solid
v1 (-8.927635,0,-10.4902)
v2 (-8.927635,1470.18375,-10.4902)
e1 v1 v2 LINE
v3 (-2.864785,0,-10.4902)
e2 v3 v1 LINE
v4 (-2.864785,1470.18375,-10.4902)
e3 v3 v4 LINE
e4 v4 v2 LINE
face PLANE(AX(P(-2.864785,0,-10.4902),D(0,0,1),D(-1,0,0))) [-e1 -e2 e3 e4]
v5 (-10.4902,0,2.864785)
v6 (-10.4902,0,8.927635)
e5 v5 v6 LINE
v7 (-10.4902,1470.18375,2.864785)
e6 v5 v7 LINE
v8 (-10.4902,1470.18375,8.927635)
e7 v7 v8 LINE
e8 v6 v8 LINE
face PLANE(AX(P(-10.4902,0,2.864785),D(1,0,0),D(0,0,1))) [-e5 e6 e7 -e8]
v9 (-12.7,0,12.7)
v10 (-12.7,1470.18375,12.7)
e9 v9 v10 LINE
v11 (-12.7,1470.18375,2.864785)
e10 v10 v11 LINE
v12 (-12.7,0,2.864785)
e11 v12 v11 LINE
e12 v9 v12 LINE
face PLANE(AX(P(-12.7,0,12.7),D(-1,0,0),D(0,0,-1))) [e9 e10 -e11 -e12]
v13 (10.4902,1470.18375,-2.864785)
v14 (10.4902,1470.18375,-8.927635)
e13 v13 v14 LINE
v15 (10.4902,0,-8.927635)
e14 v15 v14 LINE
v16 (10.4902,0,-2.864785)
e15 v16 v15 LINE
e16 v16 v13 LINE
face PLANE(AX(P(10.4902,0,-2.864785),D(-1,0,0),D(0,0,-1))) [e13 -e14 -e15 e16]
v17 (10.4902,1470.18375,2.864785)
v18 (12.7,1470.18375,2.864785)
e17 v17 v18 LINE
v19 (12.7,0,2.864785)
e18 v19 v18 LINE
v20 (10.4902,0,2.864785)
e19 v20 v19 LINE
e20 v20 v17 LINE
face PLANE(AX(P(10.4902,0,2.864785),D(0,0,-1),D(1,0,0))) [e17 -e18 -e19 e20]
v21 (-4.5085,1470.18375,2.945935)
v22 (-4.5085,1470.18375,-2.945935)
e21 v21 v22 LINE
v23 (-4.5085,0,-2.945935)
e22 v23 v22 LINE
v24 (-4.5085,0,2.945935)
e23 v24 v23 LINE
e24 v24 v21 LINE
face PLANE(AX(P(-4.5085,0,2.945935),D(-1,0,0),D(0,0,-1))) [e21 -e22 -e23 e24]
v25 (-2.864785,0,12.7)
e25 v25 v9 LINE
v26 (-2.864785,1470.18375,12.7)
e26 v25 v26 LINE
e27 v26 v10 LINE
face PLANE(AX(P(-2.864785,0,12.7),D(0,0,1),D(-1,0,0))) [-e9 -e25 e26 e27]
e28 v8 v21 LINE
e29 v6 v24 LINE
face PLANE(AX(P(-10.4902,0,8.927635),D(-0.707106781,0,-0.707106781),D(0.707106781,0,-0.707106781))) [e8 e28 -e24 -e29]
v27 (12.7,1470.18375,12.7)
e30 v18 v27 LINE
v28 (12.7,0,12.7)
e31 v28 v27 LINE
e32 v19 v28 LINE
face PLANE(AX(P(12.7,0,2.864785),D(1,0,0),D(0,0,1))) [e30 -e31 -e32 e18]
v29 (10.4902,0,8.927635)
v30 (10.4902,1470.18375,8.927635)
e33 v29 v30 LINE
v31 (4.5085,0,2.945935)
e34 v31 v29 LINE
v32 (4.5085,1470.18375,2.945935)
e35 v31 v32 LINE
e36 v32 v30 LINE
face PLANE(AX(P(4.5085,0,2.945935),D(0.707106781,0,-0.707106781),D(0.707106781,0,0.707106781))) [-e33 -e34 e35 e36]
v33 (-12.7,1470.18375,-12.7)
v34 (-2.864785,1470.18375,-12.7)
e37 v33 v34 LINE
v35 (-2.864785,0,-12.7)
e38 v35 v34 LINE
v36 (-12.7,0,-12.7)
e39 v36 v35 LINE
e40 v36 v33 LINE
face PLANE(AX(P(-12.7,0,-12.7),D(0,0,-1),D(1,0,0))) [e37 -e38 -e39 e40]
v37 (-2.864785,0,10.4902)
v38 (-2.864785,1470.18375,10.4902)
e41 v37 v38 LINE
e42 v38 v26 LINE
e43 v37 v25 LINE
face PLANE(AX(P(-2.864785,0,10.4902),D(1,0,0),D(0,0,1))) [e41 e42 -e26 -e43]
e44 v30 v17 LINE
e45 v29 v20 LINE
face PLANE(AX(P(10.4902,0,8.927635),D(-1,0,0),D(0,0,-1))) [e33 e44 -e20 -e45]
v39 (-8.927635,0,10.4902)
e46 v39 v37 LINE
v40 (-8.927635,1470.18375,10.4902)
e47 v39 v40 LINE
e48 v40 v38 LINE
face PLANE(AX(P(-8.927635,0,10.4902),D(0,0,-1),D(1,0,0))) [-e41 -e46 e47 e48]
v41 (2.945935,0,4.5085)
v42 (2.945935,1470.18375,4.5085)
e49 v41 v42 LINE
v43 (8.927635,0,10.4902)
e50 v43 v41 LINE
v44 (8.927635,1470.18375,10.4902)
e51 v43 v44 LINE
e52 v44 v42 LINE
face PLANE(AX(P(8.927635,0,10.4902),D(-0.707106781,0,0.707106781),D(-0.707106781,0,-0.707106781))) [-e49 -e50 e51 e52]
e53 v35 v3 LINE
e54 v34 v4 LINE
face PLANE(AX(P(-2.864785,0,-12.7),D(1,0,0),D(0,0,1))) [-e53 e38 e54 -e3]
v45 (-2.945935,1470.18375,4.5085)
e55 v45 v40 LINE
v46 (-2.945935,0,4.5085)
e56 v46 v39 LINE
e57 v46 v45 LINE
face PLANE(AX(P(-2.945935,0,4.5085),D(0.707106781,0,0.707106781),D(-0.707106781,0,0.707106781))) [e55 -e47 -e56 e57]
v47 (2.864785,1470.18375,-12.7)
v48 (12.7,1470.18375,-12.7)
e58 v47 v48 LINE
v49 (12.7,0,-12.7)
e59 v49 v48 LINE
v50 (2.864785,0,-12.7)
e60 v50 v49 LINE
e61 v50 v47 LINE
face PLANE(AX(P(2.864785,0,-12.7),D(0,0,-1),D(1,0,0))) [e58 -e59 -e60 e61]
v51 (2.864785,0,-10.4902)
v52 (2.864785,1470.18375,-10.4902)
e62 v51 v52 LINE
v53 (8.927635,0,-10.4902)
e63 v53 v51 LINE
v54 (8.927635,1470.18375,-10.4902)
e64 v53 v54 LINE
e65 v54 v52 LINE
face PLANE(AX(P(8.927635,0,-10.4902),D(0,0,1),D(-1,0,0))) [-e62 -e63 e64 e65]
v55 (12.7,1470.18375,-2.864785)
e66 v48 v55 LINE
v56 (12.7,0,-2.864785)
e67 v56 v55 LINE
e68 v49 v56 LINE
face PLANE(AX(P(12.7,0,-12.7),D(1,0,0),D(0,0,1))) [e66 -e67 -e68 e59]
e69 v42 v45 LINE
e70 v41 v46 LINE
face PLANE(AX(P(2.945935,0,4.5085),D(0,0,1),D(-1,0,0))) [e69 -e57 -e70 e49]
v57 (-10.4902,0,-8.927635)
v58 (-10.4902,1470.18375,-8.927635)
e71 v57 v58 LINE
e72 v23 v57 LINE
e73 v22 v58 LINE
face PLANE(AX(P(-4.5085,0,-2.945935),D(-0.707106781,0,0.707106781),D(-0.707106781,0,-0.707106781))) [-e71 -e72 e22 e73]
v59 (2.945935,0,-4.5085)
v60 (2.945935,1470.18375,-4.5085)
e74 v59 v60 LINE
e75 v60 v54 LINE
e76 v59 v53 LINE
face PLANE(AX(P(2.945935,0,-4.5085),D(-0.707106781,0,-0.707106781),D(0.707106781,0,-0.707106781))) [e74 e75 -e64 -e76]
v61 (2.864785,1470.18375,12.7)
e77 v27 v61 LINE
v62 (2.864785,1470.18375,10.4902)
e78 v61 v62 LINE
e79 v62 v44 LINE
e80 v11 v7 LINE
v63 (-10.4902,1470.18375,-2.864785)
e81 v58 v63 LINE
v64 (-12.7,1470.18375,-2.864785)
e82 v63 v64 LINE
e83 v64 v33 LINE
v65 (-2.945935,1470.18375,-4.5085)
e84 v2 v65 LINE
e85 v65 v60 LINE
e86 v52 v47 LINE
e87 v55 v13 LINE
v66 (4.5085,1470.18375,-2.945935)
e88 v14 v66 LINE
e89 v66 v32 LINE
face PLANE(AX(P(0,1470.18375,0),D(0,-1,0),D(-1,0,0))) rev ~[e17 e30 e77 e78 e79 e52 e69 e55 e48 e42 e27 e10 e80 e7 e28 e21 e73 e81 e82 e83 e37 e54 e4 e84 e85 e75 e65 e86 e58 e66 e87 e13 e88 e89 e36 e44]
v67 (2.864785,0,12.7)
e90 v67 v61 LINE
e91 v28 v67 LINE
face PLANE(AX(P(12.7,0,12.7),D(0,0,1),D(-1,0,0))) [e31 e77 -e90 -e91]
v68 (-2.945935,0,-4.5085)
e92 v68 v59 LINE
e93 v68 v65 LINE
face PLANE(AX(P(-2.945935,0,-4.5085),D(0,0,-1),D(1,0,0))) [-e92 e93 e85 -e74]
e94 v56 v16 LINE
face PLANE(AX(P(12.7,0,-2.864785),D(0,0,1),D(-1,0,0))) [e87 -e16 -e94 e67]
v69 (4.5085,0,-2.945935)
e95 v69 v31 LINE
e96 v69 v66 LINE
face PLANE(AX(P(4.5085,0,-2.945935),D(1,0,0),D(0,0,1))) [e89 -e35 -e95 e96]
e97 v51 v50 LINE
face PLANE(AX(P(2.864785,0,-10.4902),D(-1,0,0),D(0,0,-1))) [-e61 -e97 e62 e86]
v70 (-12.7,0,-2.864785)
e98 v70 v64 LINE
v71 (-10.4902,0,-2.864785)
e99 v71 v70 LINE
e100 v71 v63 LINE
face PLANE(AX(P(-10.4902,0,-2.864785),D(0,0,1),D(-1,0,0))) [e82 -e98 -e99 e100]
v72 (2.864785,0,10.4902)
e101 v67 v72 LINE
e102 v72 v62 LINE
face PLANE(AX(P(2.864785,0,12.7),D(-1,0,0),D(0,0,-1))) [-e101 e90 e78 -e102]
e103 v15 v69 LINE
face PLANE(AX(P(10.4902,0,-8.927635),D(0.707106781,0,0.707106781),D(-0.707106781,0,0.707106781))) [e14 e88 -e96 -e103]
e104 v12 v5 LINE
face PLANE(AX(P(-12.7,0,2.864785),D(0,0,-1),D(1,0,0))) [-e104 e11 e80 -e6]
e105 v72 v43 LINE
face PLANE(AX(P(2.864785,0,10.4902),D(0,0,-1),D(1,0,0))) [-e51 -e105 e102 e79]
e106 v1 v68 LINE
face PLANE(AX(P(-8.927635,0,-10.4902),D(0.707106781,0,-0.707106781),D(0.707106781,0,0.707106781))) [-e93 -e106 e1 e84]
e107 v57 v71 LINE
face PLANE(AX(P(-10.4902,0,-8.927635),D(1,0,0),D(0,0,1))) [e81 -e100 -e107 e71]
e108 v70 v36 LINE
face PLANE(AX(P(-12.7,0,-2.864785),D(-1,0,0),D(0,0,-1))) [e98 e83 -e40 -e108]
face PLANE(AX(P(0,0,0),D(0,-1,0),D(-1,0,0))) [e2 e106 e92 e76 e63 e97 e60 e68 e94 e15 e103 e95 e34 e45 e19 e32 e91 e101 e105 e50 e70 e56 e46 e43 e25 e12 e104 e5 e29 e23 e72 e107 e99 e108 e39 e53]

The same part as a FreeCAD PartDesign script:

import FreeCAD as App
import Part
import Sketcher
from FreeCAD import Vector
Q = App.Units.Quantity

doc = App.newDocument("Part")
body = doc.addObject("PartDesign::Body", "Body")

# Sketch on XZ plane
sketch1 = body.newObject("Sketcher::SketchObject", "Sketch")
sketch1.AttachmentSupport = (doc.getObject("XZ_Plane"), [""])
sketch1.MapMode = "FlatFace"
sketch1.addGeometry([
    Part.LineSegment(Vector(-2.9, -12.7, 0), Vector(-12.7, -12.7, 0)),  # 0
    Part.LineSegment(Vector(-12.7, -12.7, 0), Vector(-12.7, -2.9, 0)),  # 1
    Part.LineSegment(Vector(-12.7, -2.9, 0), Vector(-10.5, -2.9, 0)),  # 2
    Part.LineSegment(Vector(-10.5, -2.9, 0), Vector(-10.5, -8.9, 0)),  # 3
    Part.LineSegment(Vector(-10.5, -8.9, 0), Vector(-4.5, -2.9, 0)),  # 4
    Part.LineSegment(Vector(-4.5, -2.9, 0), Vector(-4.5, 2.9, 0)),  # 5
    Part.LineSegment(Vector(-4.5, 2.9, 0), Vector(-10.5, 8.9, 0)),  # 6
    Part.LineSegment(Vector(-10.5, 8.9, 0), Vector(-10.5, 2.9, 0)),  # 7
    Part.LineSegment(Vector(-10.5, 2.9, 0), Vector(-12.7, 2.9, 0)),  # 8
    Part.LineSegment(Vector(-12.7, 2.9, 0), Vector(-12.7, 12.7, 0)),  # 9
    Part.LineSegment(Vector(-12.7, 12.7, 0), Vector(-2.9, 12.7, 0)),  # 10
    Part.LineSegment(Vector(-2.9, 12.7, 0), Vector(-2.9, 10.5, 0)),  # 11
    Part.LineSegment(Vector(-2.9, 10.5, 0), Vector(-8.9, 10.5, 0)),  # 12
    Part.LineSegment(Vector(-8.9, 10.5, 0), Vector(-2.9, 4.5, 0)),  # 13
    Part.LineSegment(Vector(-2.9, 4.5, 0), Vector(2.9, 4.5, 0)),  # 14
    Part.LineSegment(Vector(2.9, 4.5, 0), Vector(8.9, 10.5, 0)),  # 15
    Part.LineSegment(Vector(8.9, 10.5, 0), Vector(2.9, 10.5, 0)),  # 16
    Part.LineSegment(Vector(2.9, 10.5, 0), Vector(2.9, 12.7, 0)),  # 17
    Part.LineSegment(Vector(2.9, 12.7, 0), Vector(12.7, 12.7, 0)),  # 18
    Part.LineSegment(Vector(12.7, 12.7, 0), Vector(12.7, 2.9, 0)),  # 19
    Part.LineSegment(Vector(12.7, 2.9, 0), Vector(10.5, 2.9, 0)),  # 20
    Part.LineSegment(Vector(10.5, 2.9, 0), Vector(10.5, 8.9, 0)),  # 21
    Part.LineSegment(Vector(10.5, 8.9, 0), Vector(4.5, 2.9, 0)),  # 22
    Part.LineSegment(Vector(4.5, 2.9, 0), Vector(4.5, -2.9, 0)),  # 23
    Part.LineSegment(Vector(4.5, -2.9, 0), Vector(10.5, -8.9, 0)),  # 24
    Part.LineSegment(Vector(10.5, -8.9, 0), Vector(10.5, -2.9, 0)),  # 25
    Part.LineSegment(Vector(10.5, -2.9, 0), Vector(12.7, -2.9, 0)),  # 26
    Part.LineSegment(Vector(12.7, -2.9, 0), Vector(12.7, -12.7, 0)),  # 27
    Part.LineSegment(Vector(12.7, -12.7, 0), Vector(2.9, -12.7, 0)),  # 28
    Part.LineSegment(Vector(2.9, -12.7, 0), Vector(2.9, -10.5, 0)),  # 29
    Part.LineSegment(Vector(2.9, -10.5, 0), Vector(8.9, -10.5, 0)),  # 30
    Part.LineSegment(Vector(8.9, -10.5, 0), Vector(2.9, -4.5, 0)),  # 31
    Part.LineSegment(Vector(2.9, -4.5, 0), Vector(-2.9, -4.5, 0)),  # 32
    Part.LineSegment(Vector(-2.9, -4.5, 0), Vector(-8.9, -10.5, 0)),  # 33
    Part.LineSegment(Vector(-8.9, -10.5, 0), Vector(-2.9, -10.5, 0)),  # 34
    Part.LineSegment(Vector(-2.9, -10.5, 0), Vector(-2.9, -12.7, 0)),  # 35
], False)
sketch1.addConstraint([
    Sketcher.Constraint("Coincident", 0, 2, 1, 1),
    Sketcher.Constraint("Coincident", 1, 2, 2, 1),
    Sketcher.Constraint("Coincident", 2, 2, 3, 1),
    Sketcher.Constraint("Coincident", 3, 2, 4, 1),
    Sketcher.Constraint("Coincident", 4, 2, 5, 1),
    Sketcher.Constraint("Coincident", 5, 2, 6, 1),
    Sketcher.Constraint("Coincident", 6, 2, 7, 1),
    Sketcher.Constraint("Coincident", 7, 2, 8, 1),
    Sketcher.Constraint("Coincident", 8, 2, 9, 1),
    Sketcher.Constraint("Coincident", 9, 2, 10, 1),
    Sketcher.Constraint("Coincident", 10, 2, 11, 1),
    Sketcher.Constraint("Coincident", 11, 2, 12, 1),
    Sketcher.Constraint("Coincident", 12, 2, 13, 1),
    Sketcher.Constraint("Coincident", 13, 2, 14, 1),
    Sketcher.Constraint("Coincident", 14, 2, 15, 1),
    Sketcher.Constraint("Coincident", 15, 2, 16, 1),
    Sketcher.Constraint("Coincident", 16, 2, 17, 1),
    Sketcher.Constraint("Coincident", 17, 2, 18, 1),
    Sketcher.Constraint("Coincident", 18, 2, 19, 1),
    Sketcher.Constraint("Coincident", 19, 2, 20, 1),
    Sketcher.Constraint("Coincident", 20, 2, 21, 1),
    Sketcher.Constraint("Coincident", 21, 2, 22, 1),
    Sketcher.Constraint("Coincident", 22, 2, 23, 1),
    Sketcher.Constraint("Coincident", 23, 2, 24, 1),
    Sketcher.Constraint("Coincident", 24, 2, 25, 1),
    Sketcher.Constraint("Coincident", 25, 2, 26, 1),
    Sketcher.Constraint("Coincident", 26, 2, 27, 1),
    Sketcher.Constraint("Coincident", 27, 2, 28, 1),
    Sketcher.Constraint("Coincident", 28, 2, 29, 1),
    Sketcher.Constraint("Coincident", 29, 2, 30, 1),
    Sketcher.Constraint("Coincident", 30, 2, 31, 1),
    Sketcher.Constraint("Coincident", 31, 2, 32, 1),
    Sketcher.Constraint("Coincident", 32, 2, 33, 1),
    Sketcher.Constraint("Coincident", 33, 2, 34, 1),
    Sketcher.Constraint("Coincident", 34, 2, 35, 1),
    Sketcher.Constraint("Coincident", 35, 2, 0, 1),
    Sketcher.Constraint("Horizontal", 0),
    Sketcher.Constraint("Vertical", 1),
    Sketcher.Constraint("Horizontal", 2),
    Sketcher.Constraint("Vertical", 3),
    Sketcher.Constraint("Vertical", 5),
    Sketcher.Constraint("Vertical", 7),
    Sketcher.Constraint("Horizontal", 8),
    Sketcher.Constraint("Vertical", 9),
    Sketcher.Constraint("Horizontal", 10),
    Sketcher.Constraint("Vertical", 11),
    Sketcher.Constraint("Horizontal", 12),
    Sketcher.Constraint("Horizontal", 14),
    Sketcher.Constraint("Horizontal", 16),
    Sketcher.Constraint("Vertical", 17),
    Sketcher.Constraint("Horizontal", 18),
    Sketcher.Constraint("Vertical", 19),
    Sketcher.Constraint("Horizontal", 20),
    Sketcher.Constraint("Vertical", 21),
    Sketcher.Constraint("Vertical", 23),
    Sketcher.Constraint("Vertical", 25),
    Sketcher.Constraint("Horizontal", 26),
    Sketcher.Constraint("Vertical", 27),
    Sketcher.Constraint("Horizontal", 28),
    Sketcher.Constraint("Vertical", 29),
    Sketcher.Constraint("Horizontal", 30),
    Sketcher.Constraint("Horizontal", 32),
    Sketcher.Constraint("Horizontal", 34),
    Sketcher.Constraint("Vertical", 35),
    Sketcher.Constraint("Symmetric", 0, 2, 18, 2, -1, 1),
    Sketcher.Constraint("Symmetric", 2, 2, 20, 2, -1, 1),
    Sketcher.Constraint("Symmetric", 4, 2, 22, 2, -1, 1),
    Sketcher.Constraint("Symmetric", 6, 2, 24, 2, -1, 1),
    Sketcher.Constraint("Symmetric", 8, 2, 26, 2, -1, 1),
    Sketcher.Constraint("Symmetric", 10, 2, 28, 2, -1, 1),
    Sketcher.Constraint("Symmetric", 12, 2, 30, 2, -1, 1),
    Sketcher.Constraint("Symmetric", 13, 2, 31, 2, -1, 1),
    Sketcher.Constraint("Symmetric", 15, 2, 33, 2, -1, 1),
    Sketcher.Constraint("Symmetric", 12, 2, 15, 2, -2),
    Sketcher.Constraint("Symmetric", 10, 2, 17, 2, -2),
    Sketcher.Constraint("Symmetric", 8, 2, 19, 2, -2),
    Sketcher.Constraint("Symmetric", 6, 2, 21, 2, -2),
    Sketcher.Constraint("Perpendicular", 4, 6),
    Sketcher.Constraint("Parallel", 6, 13),
    Sketcher.Constraint("Perpendicular", 13, 15),
    Sketcher.Constraint("Parallel", 15, 22),
    Sketcher.Constraint("Perpendicular", 22, 24),
    Sketcher.Constraint("Perpendicular", 31, 33),
    Sketcher.Constraint("Horizontal", 5, 2, 22, 2),
    Sketcher.Constraint("Vertical", 11, 2, 34, 2),
    Sketcher.Constraint("Equal", 28, 1),
    Sketcher.Constraint("Equal", 34, 3),
    Sketcher.Constraint("Equal", 32, 5),
    Sketcher.Constraint("Equal", 26, 11),
    Sketcher.Constraint("Equal", 6, 13),
    Sketcher.Constraint("DistanceX", 0, 2, -1, 1, Q("0.5 in")),
    Sketcher.Constraint("DistanceX", 2, 1, 2, 2, Q("0.087 in")),
    Sketcher.Constraint("DistanceX", 4, 2, 23, 2, Q("0.355 in")),
    Sketcher.Constraint("DistanceX", 12, 2, 12, 1, Q("6.06285 mm")),
    Sketcher.Constraint("DistanceX", 14, 1, 14, 2, Q("5.891871 mm")),
])
pad1 = body.newObject("PartDesign::Pad", "Pad")
pad1.Profile = sketch1
pad1.Length = 1470.18375
pad1.Reversed = True

doc.recompute()
